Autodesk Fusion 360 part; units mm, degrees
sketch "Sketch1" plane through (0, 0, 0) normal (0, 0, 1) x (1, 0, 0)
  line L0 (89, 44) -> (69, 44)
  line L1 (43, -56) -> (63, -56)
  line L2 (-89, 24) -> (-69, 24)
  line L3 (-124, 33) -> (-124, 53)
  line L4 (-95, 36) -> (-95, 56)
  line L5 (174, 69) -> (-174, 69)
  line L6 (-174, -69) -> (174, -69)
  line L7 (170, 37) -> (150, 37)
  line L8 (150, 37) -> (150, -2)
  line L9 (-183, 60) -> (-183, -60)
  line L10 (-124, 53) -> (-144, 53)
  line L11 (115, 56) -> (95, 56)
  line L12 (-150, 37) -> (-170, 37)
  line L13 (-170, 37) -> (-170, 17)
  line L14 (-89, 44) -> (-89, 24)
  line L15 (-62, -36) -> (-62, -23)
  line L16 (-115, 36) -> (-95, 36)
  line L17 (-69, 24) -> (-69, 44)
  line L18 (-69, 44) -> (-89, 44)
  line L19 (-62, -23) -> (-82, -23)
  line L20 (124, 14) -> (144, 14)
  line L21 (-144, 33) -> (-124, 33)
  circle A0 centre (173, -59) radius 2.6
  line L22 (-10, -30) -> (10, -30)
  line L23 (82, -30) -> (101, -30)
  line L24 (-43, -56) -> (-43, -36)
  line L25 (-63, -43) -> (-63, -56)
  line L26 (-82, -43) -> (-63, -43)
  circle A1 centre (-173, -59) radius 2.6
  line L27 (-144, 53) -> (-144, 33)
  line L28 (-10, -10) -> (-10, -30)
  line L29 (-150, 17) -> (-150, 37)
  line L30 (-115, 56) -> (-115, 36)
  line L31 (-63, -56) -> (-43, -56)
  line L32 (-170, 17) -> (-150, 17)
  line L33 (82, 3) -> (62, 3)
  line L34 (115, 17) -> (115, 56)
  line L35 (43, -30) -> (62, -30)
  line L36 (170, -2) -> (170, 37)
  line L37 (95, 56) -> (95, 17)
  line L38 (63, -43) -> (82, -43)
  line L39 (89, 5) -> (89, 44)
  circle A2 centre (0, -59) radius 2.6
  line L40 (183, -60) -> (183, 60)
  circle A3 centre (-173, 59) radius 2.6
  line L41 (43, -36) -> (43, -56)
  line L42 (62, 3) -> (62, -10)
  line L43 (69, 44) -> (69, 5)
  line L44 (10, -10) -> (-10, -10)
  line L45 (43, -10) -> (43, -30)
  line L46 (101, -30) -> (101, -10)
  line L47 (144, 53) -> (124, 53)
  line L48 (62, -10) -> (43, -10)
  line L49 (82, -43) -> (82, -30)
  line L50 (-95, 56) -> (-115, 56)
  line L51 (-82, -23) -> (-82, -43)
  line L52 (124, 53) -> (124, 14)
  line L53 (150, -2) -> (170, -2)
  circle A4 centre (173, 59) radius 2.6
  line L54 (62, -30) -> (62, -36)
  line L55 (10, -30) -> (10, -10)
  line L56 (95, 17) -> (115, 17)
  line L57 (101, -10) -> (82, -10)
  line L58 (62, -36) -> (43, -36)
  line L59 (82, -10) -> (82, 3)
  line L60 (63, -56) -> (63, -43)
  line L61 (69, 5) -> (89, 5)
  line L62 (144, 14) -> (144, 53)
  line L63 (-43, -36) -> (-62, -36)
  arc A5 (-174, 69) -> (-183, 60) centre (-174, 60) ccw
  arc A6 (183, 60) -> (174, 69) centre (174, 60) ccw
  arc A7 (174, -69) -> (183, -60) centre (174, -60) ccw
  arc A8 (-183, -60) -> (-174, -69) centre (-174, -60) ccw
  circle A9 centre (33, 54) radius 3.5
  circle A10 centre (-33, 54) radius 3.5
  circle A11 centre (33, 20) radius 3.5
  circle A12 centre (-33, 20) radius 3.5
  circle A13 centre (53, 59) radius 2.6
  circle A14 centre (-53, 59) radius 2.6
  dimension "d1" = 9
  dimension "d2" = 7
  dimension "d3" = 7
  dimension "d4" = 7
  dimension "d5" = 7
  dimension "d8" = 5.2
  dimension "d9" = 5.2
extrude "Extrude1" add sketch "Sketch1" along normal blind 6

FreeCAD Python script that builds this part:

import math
import FreeCAD as App
import Part
import Sketcher

V = App.Vector

doc = App.newDocument("Part")
body = doc.addObject("PartDesign::Body", "Body")

sketch1 = doc.addObject("Sketcher::SketchObject", "Sketch")
body.addObject(sketch1)
sketch1.AttachmentSupport = (doc.XY_Plane, [""])
sketch1.MapMode = "FlatFace"
sketch1.addGeometry([
    Part.ArcOfCircle(Part.Circle(V(174, 60, 0), V(0, 0, 1), 9), math.radians(0), math.radians(90)),
    Part.LineSegment(V(174, 69, 0), V(-174, 69, 0)),
    Part.ArcOfCircle(Part.Circle(V(-174, 60, 0), V(0, 0, 1), 9), math.radians(90), math.radians(180)),
    Part.LineSegment(V(-183, 60, 0), V(-183, -60, 0)),
    Part.ArcOfCircle(Part.Circle(V(-174, -60, 0), V(0, 0, 1), 9), math.radians(180), math.radians(270)),
    Part.LineSegment(V(-174, -69, 0), V(174, -69, 0)),
    Part.ArcOfCircle(Part.Circle(V(174, -60, 0), V(0, 0, 1), 9), math.radians(-90), math.radians(0)),
    Part.LineSegment(V(183, -60, 0), V(183, 60, 0)),
    Part.Circle(V(-173, -59, 0), V(0, 0, 1), 2.6),
    Part.LineSegment(V(-62, -23, 0), V(-62, -36, 0)),
    Part.LineSegment(V(-62, -36, 0), V(-43, -36, 0)),
    Part.LineSegment(V(-43, -36, 0), V(-43, -56, 0)),
    Part.LineSegment(V(-43, -56, 0), V(-63, -56, 0)),
    Part.LineSegment(V(-63, -56, 0), V(-63, -43, 0)),
    Part.LineSegment(V(-63, -43, 0), V(-82, -43, 0)),
    Part.LineSegment(V(-82, -43, 0), V(-82, -23, 0)),
    Part.LineSegment(V(-82, -23, 0), V(-62, -23, 0)),
    Part.Circle(V(0, -59, 0), V(0, 0, 1), 2.6),
    Part.Circle(V(173, -59, 0), V(0, 0, 1), 2.6),
    Part.LineSegment(V(10, -30, 0), V(-10, -30, 0)),
    Part.LineSegment(V(-10, -30, 0), V(-10, -10, 0)),
    Part.LineSegment(V(-10, -10, 0), V(10, -10, 0)),
    Part.LineSegment(V(10, -10, 0), V(10, -30, 0)),
    Part.LineSegment(V(63, -56, 0), V(43, -56, 0)),
    Part.LineSegment(V(43, -56, 0), V(43, -36, 0)),
    Part.LineSegment(V(43, -36, 0), V(62, -36, 0)),
    Part.LineSegment(V(62, -36, 0), V(62, -30, 0)),
    Part.LineSegment(V(62, -30, 0), V(43, -30, 0)),
    Part.LineSegment(V(43, -30, 0), V(43, -10, 0)),
    Part.LineSegment(V(43, -10, 0), V(62, -10, 0)),
    Part.LineSegment(V(62, -10, 0), V(62, 3, 0)),
    Part.LineSegment(V(62, 3, 0), V(82, 3, 0)),
    Part.LineSegment(V(82, 3, 0), V(82, -10, 0)),
    Part.LineSegment(V(82, -10, 0), V(101, -10, 0)),
    Part.LineSegment(V(101, -10, 0), V(101, -30, 0)),
    Part.LineSegment(V(101, -30, 0), V(82, -30, 0)),
    Part.LineSegment(V(82, -30, 0), V(82, -43, 0)),
    Part.LineSegment(V(82, -43, 0), V(63, -43, 0)),
    Part.LineSegment(V(63, -43, 0), V(63, -56, 0)),
    Part.LineSegment(V(-170, 37, 0), V(-150, 37, 0)),
    Part.LineSegment(V(-150, 37, 0), V(-150, 17, 0)),
    Part.LineSegment(V(-150, 17, 0), V(-170, 17, 0)),
    Part.LineSegment(V(-170, 17, 0), V(-170, 37, 0)),
    Part.LineSegment(V(-69, 24, 0), V(-89, 24, 0)),
    Part.LineSegment(V(-89, 24, 0), V(-89, 44, 0)),
    Part.LineSegment(V(-89, 44, 0), V(-69, 44, 0)),
    Part.LineSegment(V(-69, 44, 0), V(-69, 24, 0)),
    Part.Circle(V(-33, 20, 0), V(0, 0, 1), 3.5),
    Part.LineSegment(V(-124, 53, 0), V(-124, 33, 0)),
    Part.LineSegment(V(-124, 33, 0), V(-144, 33, 0)),
    Part.LineSegment(V(-144, 33, 0), V(-144, 53, 0)),
    Part.LineSegment(V(-144, 53, 0), V(-124, 53, 0)),
    Part.LineSegment(V(-95, 56, 0), V(-95, 36, 0)),
    Part.LineSegment(V(-95, 36, 0), V(-115, 36, 0)),
    Part.LineSegment(V(-115, 36, 0), V(-115, 56, 0)),
    Part.LineSegment(V(-115, 56, 0), V(-95, 56, 0)),
    Part.Circle(V(-173, 59, 0), V(0, 0, 1), 2.6),
    Part.Circle(V(-53, 59, 0), V(0, 0, 1), 2.6),
    Part.Circle(V(-33, 54, 0), V(0, 0, 1), 3.5),
    Part.Circle(V(33, 20, 0), V(0, 0, 1), 3.5),
    Part.LineSegment(V(69, 44, 0), V(89, 44, 0)),
    Part.LineSegment(V(89, 44, 0), V(89, 5, 0)),
    Part.LineSegment(V(89, 5, 0), V(69, 5, 0)),
    Part.LineSegment(V(69, 5, 0), V(69, 44, 0)),
    Part.LineSegment(V(144, 14, 0), V(124, 14, 0)),
    Part.LineSegment(V(124, 14, 0), V(124, 53, 0)),
    Part.LineSegment(V(124, 53, 0), V(144, 53, 0)),
    Part.LineSegment(V(144, 53, 0), V(144, 14, 0)),
    Part.LineSegment(V(150, 37, 0), V(170, 37, 0)),
    Part.LineSegment(V(170, 37, 0), V(170, -2, 0)),
    Part.LineSegment(V(170, -2, 0), V(150, -2, 0)),
    Part.LineSegment(V(150, -2, 0), V(150, 37, 0)),
    Part.Circle(V(33, 54, 0), V(0, 0, 1), 3.5),
    Part.Circle(V(53, 59, 0), V(0, 0, 1), 2.6),
    Part.LineSegment(V(95, 56, 0), V(115, 56, 0)),
    Part.LineSegment(V(115, 56, 0), V(115, 17, 0)),
    Part.LineSegment(V(115, 17, 0), V(95, 17, 0)),
    Part.LineSegment(V(95, 17, 0), V(95, 56, 0)),
    Part.Circle(V(173, 59, 0), V(0, 0, 1), 2.6),
], False)
sketch1.addConstraint([
    Sketcher.Constraint("Tangent", 0, 2, 1, 1),
    Sketcher.Constraint("Tangent", 1, 2, 2, 1),
    Sketcher.Constraint("Tangent", 2, 2, 3, 1),
    Sketcher.Constraint("Tangent", 3, 2, 4, 1),
    Sketcher.Constraint("Tangent", 4, 2, 5, 1),
    Sketcher.Constraint("Tangent", 5, 2, 6, 1),
    Sketcher.Constraint("Tangent", 6, 2, 7, 1),
    Sketcher.Constraint("Tangent", 7, 2, 0, 1),
    Sketcher.Constraint("Coincident", 9, 2, 10, 1),
    Sketcher.Constraint("Coincident", 10, 2, 11, 1),
    Sketcher.Constraint("Coincident", 11, 2, 12, 1),
    Sketcher.Constraint("Coincident", 12, 2, 13, 1),
    Sketcher.Constraint("Coincident", 13, 2, 14, 1),
    Sketcher.Constraint("Coincident", 14, 2, 15, 1),
    Sketcher.Constraint("Coincident", 15, 2, 16, 1),
    Sketcher.Constraint("Coincident", 16, 2, 9, 1),
    Sketcher.Constraint("Coincident", 19, 2, 20, 1),
    Sketcher.Constraint("Coincident", 20, 2, 21, 1),
    Sketcher.Constraint("Coincident", 21, 2, 22, 1),
    Sketcher.Constraint("Coincident", 22, 2, 19, 1),
    Sketcher.Constraint("Coincident", 23, 2, 24, 1),
    Sketcher.Constraint("Coincident", 24, 2, 25, 1),
    Sketcher.Constraint("Coincident", 25, 2, 26, 1),
    Sketcher.Constraint("Coincident", 26, 2, 27, 1),
    Sketcher.Constraint("Coincident", 27, 2, 28, 1),
    Sketcher.Constraint("Coincident", 28, 2, 29, 1),
    Sketcher.Constraint("Coincident", 29, 2, 30, 1),
    Sketcher.Constraint("Coincident", 30, 2, 31, 1),
    Sketcher.Constraint("Coincident", 31, 2, 32, 1),
    Sketcher.Constraint("Coincident", 32, 2, 33, 1),
    Sketcher.Constraint("Coincident", 33, 2, 34, 1),
    Sketcher.Constraint("Coincident", 34, 2, 35, 1),
    Sketcher.Constraint("Coincident", 35, 2, 36, 1),
    Sketcher.Constraint("Coincident", 36, 2, 37, 1),
    Sketcher.Constraint("Coincident", 37, 2, 38, 1),
    Sketcher.Constraint("Coincident", 38, 2, 23, 1),
    Sketcher.Constraint("Coincident", 39, 2, 40, 1),
    Sketcher.Constraint("Coincident", 40, 2, 41, 1),
    Sketcher.Constraint("Coincident", 41, 2, 42, 1),
    Sketcher.Constraint("Coincident", 42, 2, 39, 1),
    Sketcher.Constraint("Coincident", 43, 2, 44, 1),
    Sketcher.Constraint("Coincident", 44, 2, 45, 1),
    Sketcher.Constraint("Coincident", 45, 2, 46, 1),
    Sketcher.Constraint("Coincident", 46, 2, 43, 1),
    Sketcher.Constraint("Coincident", 48, 2, 49, 1),
    Sketcher.Constraint("Coincident", 49, 2, 50, 1),
    Sketcher.Constraint("Coincident", 50, 2, 51, 1),
    Sketcher.Constraint("Coincident", 51, 2, 48, 1),
    Sketcher.Constraint("Coincident", 52, 2, 53, 1),
    Sketcher.Constraint("Coincident", 53, 2, 54, 1),
    Sketcher.Constraint("Coincident", 54, 2, 55, 1),
    Sketcher.Constraint("Coincident", 55, 2, 52, 1),
    Sketcher.Constraint("Coincident", 60, 2, 61, 1),
    Sketcher.Constraint("Coincident", 61, 2, 62, 1),
    Sketcher.Constraint("Coincident", 62, 2, 63, 1),
    Sketcher.Constraint("Coincident", 63, 2, 60, 1),
    Sketcher.Constraint("Coincident", 64, 2, 65, 1),
    Sketcher.Constraint("Coincident", 65, 2, 66, 1),
    Sketcher.Constraint("Coincident", 66, 2, 67, 1),
    Sketcher.Constraint("Coincident", 67, 2, 64, 1),
    Sketcher.Constraint("Coincident", 68, 2, 69, 1),
    Sketcher.Constraint("Coincident", 69, 2, 70, 1),
    Sketcher.Constraint("Coincident", 70, 2, 71, 1),
    Sketcher.Constraint("Coincident", 71, 2, 68, 1),
    Sketcher.Constraint("Coincident", 74, 2, 75, 1),
    Sketcher.Constraint("Coincident", 75, 2, 76, 1),
    Sketcher.Constraint("Coincident", 76, 2, 77, 1),
    Sketcher.Constraint("Coincident", 77, 2, 74, 1),
    Sketcher.Constraint("Horizontal", 1),
    Sketcher.Constraint("Vertical", 3),
    Sketcher.Constraint("Horizontal", 5),
    Sketcher.Constraint("Vertical", 7),
    Sketcher.Constraint("Vertical", 9),
    Sketcher.Constraint("Horizontal", 10),
    Sketcher.Constraint("Vertical", 11),
    Sketcher.Constraint("Horizontal", 12),
    Sketcher.Constraint("Vertical", 13),
    Sketcher.Constraint("Horizontal", 14),
    Sketcher.Constraint("Vertical", 15),
    Sketcher.Constraint("Horizontal", 16),
    Sketcher.Constraint("Horizontal", 19),
    Sketcher.Constraint("Vertical", 20),
    Sketcher.Constraint("Horizontal", 21),
    Sketcher.Constraint("Vertical", 22),
    Sketcher.Constraint("Horizontal", 23),
    Sketcher.Constraint("Vertical", 24),
    Sketcher.Constraint("Horizontal", 25),
    Sketcher.Constraint("Vertical", 26),
    Sketcher.Constraint("Horizontal", 27),
    Sketcher.Constraint("Vertical", 28),
    Sketcher.Constraint("Horizontal", 29),
    Sketcher.Constraint("Vertical", 30),
    Sketcher.Constraint("Horizontal", 31),
    Sketcher.Constraint("Vertical", 32),
    Sketcher.Constraint("Horizontal", 33),
    Sketcher.Constraint("Vertical", 34),
    Sketcher.Constraint("Horizontal", 35),
    Sketcher.Constraint("Vertical", 36),
    Sketcher.Constraint("Horizontal", 37),
    Sketcher.Constraint("Vertical", 38),
    Sketcher.Constraint("Horizontal", 39),
    Sketcher.Constraint("Vertical", 40),
    Sketcher.Constraint("Horizontal", 41),
    Sketcher.Constraint("Vertical", 42),
    Sketcher.Constraint("Horizontal", 43),
    Sketcher.Constraint("Vertical", 44),
    Sketcher.Constraint("Horizontal", 45),
    Sketcher.Constraint("Vertical", 46),
    Sketcher.Constraint("Vertical", 48),
    Sketcher.Constraint("Horizontal", 49),
    Sketcher.Constraint("Vertical", 50),
    Sketcher.Constraint("Horizontal", 51),
    Sketcher.Constraint("Vertical", 52),
    Sketcher.Constraint("Horizontal", 53),
    Sketcher.Constraint("Vertical", 54),
    Sketcher.Constraint("Horizontal", 55),
    Sketcher.Constraint("Horizontal", 60),
    Sketcher.Constraint("Vertical", 61),
    Sketcher.Constraint("Horizontal", 62),
    Sketcher.Constraint("Vertical", 63),
    Sketcher.Constraint("Horizontal", 64),
    Sketcher.Constraint("Vertical", 65),
    Sketcher.Constraint("Horizontal", 66),
    Sketcher.Constraint("Vertical", 67),
    Sketcher.Constraint("Horizontal", 68),
    Sketcher.Constraint("Vertical", 69),
    Sketcher.Constraint("Horizontal", 70),
    Sketcher.Constraint("Vertical", 71),
    Sketcher.Constraint("Horizontal", 74),
    Sketcher.Constraint("Vertical", 75),
    Sketcher.Constraint("Horizontal", 76),
    Sketcher.Constraint("Vertical", 77),
    Sketcher.Constraint("Equal", 0, 2),
    Sketcher.Constraint("Equal", 2, 4),
    Sketcher.Constraint("Equal", 4, 6),
    Sketcher.Constraint("Equal", 8, 17),
    Sketcher.Constraint("Equal", 17, 18),
    Sketcher.Constraint("Equal", 18, 56),
    Sketcher.Constraint("Equal", 56, 57),
    Sketcher.Constraint("Equal", 47, 58),
    Sketcher.Constraint("Equal", 58, 59),
    Sketcher.Constraint("Equal", 59, 72),
    Sketcher.Constraint("Equal", 57, 73),
    Sketcher.Constraint("Equal", 73, 78),
    Sketcher.Constraint("Symmetric", 0, 3, 4, 3, -1, 1),
    Sketcher.Constraint("Symmetric", 18, 3, 56, 3, -1, 1),
    Sketcher.Constraint("Symmetric", 8, 3, 78, 3, -1, 1),
    Sketcher.Constraint("Symmetric", 8, 3, 18, 3, -2),
    Sketcher.Constraint("Symmetric", 47, 3, 59, 3, -2),
    Sketcher.Constraint("Symmetric", 58, 3, 72, 3, -2),
    Sketcher.Constraint("Symmetric", 57, 3, 73, 3, -2),
    Sketcher.Constraint("Symmetric", 11, 2, 23, 2, -2),
    Sketcher.Constraint("Symmetric", 9, 2, 25, 2, -2),
    Sketcher.Constraint("Symmetric", 14, 2, 36, 2, -2),
    Sketcher.Constraint("Symmetric", 44, 2, 60, 2, -2),
    Sketcher.Constraint("Symmetric", 51, 2, 65, 2, -2),
    Sketcher.Constraint("Symmetric", 42, 2, 68, 2, -2),
    Sketcher.Constraint("Symmetric", 54, 2, 74, 2, -2),
    Sketcher.Constraint("PointOnObject", 17, 3, -2),
    Sketcher.Constraint("Horizontal", 8, 3, 17, 3),
    Sketcher.Constraint("Horizontal", 56, 3, 57, 3),
    Sketcher.Constraint("Horizontal", 22, 2, 26, 2),
    Sketcher.Constraint("Horizontal", 21, 2, 28, 2),
    Sketcher.Constraint("Horizontal", 29, 2, 32, 2),
    Sketcher.Constraint("Horizontal", 27, 2, 34, 2),
    Sketcher.Constraint("Horizontal", 41, 2, 75, 2),
    Sketcher.Constraint("Vertical", 47, 3, 58, 3),
    Sketcher.Constraint("Vertical", 24, 2, 27, 2),
    Sketcher.Constraint("Vertical", 26, 2, 29, 2),
    Sketcher.Constraint("Vertical", 32, 2, 35, 2),
    Sketcher.Constraint("Equal", 10, 14),
    Sketcher.Constraint("Equal", 16, 19),
    Sketcher.Constraint("Equal", 21, 23),
    Sketcher.Constraint("Equal", 29, 33),
    Sketcher.Constraint("Equal", 31, 39),
    Sketcher.Constraint("Equal", 41, 43),
    Sketcher.Constraint("Equal", 45, 49),
    Sketcher.Constraint("Equal", 51, 53),
    Sketcher.Constraint("Equal", 55, 60),
    Sketcher.Constraint("Equal", 62, 64),
    Sketcher.Constraint("Equal", 66, 68),
    Sketcher.Constraint("Equal", 70, 74),
    Sketcher.Constraint("Equal", 76, 11),
    Sketcher.Constraint("Equal", 9, 13),
    Sketcher.Constraint("Equal", 15, 20),
    Sketcher.Constraint("Equal", 13, 30),
    Sketcher.Constraint("Equal", 32, 36),
    Sketcher.Constraint("Equal", 34, 40),
    Sketcher.Constraint("Equal", 42, 44),
    Sketcher.Constraint("Equal", 46, 48),
    Sketcher.Constraint("Equal", 50, 52),
    Sketcher.Constraint("Equal", 63, 65),
    Sketcher.Constraint("Equal", 67, 69),
    Sketcher.Constraint("Equal", 71, 75),
    Sketcher.Constraint("Diameter", 47, 7.0),
    Sketcher.Constraint("Radius", 0, 9.0),
    Sketcher.Constraint("Diameter", 8, 5.2),
    Sketcher.Constraint("DistanceX", 1, 2, 1, 1, 348.0),
    Sketcher.Constraint("DistanceX", 10, 1, 10, 2, 19.0),
    Sketcher.Constraint("DistanceX", 12, 2, 12, 1, 20.0),
    Sketcher.Constraint("DistanceY", 3, 2, 3, 1, 120.0),
    Sketcher.Constraint("DistanceY", 9, 2, 9, 1, 13.0),
    Sketcher.Constraint("DistanceY", 61, 2, 61, 1, 39.0),
    Sketcher.Constraint("DistanceX", 8, 3, -1, 1, 173.0),
    Sketcher.Constraint("DistanceY", 8, 3, -1, 1, 59.0),
    Sketcher.Constraint("DistanceX", 47, 3, -1, 1, 33.0),
    Sketcher.Constraint("DistanceY", -1, 1, 47, 3, 20.0),
    Sketcher.Constraint("DistanceX", 57, 3, -1, 1, 53.0),
    Sketcher.Constraint("DistanceY", -1, 1, 58, 3, 54.0),
    Sketcher.Constraint("DistanceX", 9, 2, -1, 1, 62.0),
    Sketcher.Constraint("DistanceY", 9, 2, -1, 1, 36.0),
    Sketcher.Constraint("DistanceX", 19, 2, -1, 1, 10.0),
    Sketcher.Constraint("DistanceX", 39, 2, -1, 1, 150.0),
    Sketcher.Constraint("DistanceY", -1, 1, 39, 2, 37.0),
    Sketcher.Constraint("DistanceX", 43, 2, -1, 1, 89.0),
    Sketcher.Constraint("DistanceY", -1, 1, 43, 2, 24.0),
    Sketcher.Constraint("DistanceX", 48, 2, -1, 1, 124.0),
    Sketcher.Constraint("DistanceY", -1, 1, 48, 2, 33.0),
    Sketcher.Constraint("DistanceX", 52, 2, -1, 1, 95.0),
])
pad1 = doc.addObject("PartDesign::Pad", "Pad")
body.addObject(pad1)
pad1.Profile = sketch1
pad1.Length = 6

doc.recompute()
